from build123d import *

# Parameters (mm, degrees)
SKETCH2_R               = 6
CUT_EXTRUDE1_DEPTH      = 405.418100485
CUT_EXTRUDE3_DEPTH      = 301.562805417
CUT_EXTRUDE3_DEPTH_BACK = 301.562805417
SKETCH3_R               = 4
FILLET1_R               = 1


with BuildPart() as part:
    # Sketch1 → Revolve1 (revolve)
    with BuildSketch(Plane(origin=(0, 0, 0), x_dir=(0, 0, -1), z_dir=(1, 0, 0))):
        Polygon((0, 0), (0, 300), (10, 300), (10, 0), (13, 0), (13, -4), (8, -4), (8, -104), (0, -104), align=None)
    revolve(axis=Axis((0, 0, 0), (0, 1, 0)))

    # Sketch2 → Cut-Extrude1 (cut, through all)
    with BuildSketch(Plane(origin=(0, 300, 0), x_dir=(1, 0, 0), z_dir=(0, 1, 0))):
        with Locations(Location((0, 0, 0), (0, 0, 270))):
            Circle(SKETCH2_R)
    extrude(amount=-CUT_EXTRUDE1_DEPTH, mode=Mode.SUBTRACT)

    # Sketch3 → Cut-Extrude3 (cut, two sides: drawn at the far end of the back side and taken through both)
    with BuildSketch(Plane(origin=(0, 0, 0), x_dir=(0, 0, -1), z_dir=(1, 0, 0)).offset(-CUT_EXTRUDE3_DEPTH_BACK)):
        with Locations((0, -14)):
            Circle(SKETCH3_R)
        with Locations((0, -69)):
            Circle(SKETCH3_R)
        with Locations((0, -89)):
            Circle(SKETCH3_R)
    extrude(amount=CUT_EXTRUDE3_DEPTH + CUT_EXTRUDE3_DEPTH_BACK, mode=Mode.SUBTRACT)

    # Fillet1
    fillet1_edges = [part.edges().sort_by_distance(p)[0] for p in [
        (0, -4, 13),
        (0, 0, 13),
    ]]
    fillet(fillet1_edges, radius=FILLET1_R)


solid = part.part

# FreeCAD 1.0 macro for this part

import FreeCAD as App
import Part
import Sketcher

V = App.Vector


def edges_at(feature, points):
    """Names of the edges that pass closest to the given points."""
    edges = feature.Shape.Edges
    near = lambda p: min(range(len(edges)), key=lambda i: edges[i].distToShape(Part.Vertex(*p))[0])
    return sorted({f"Edge{near(p) + 1}" for p in points})

doc = App.newDocument("Part")
body = doc.addObject("PartDesign::Body", "Body")

sketch1 = doc.addObject("Sketcher::SketchObject", "Sketch")
body.addObject(sketch1)
sketch1.AttachmentSupport = (doc.YZ_Plane, [""])
sketch1.MapMode = "FlatFace"
sketch1.addGeometry([
    Part.LineSegment(V(300, 0, 0), V(-104, 0, 0)),
    Part.LineSegment(V(-104, 0, 0), V(-104, -8, 0)),
    Part.LineSegment(V(-104, -8, 0), V(-4, -8, 0)),
    Part.LineSegment(V(-4, -8, 0), V(-4, -13, 0)),
    Part.LineSegment(V(-4, -13, 0), V(0, -13, 0)),
    Part.LineSegment(V(0, -13, 0), V(0, -10, 0)),
    Part.LineSegment(V(0, -10, 0), V(300, -10, 0)),
    Part.LineSegment(V(300, -10, 0), V(300, 0, 0)),
], False)
sketch1.addConstraint([
    Sketcher.Constraint("Coincident", 0, 2, 1, 1),
    Sketcher.Constraint("Coincident", 1, 2, 2, 1),
    Sketcher.Constraint("Coincident", 2, 2, 3, 1),
    Sketcher.Constraint("Coincident", 3, 2, 4, 1),
    Sketcher.Constraint("Coincident", 4, 2, 5, 1),
    Sketcher.Constraint("Coincident", 5, 2, 6, 1),
    Sketcher.Constraint("Coincident", 6, 2, 7, 1),
    Sketcher.Constraint("Coincident", 7, 2, 0, 1),
    Sketcher.Constraint("Horizontal", 0),
    Sketcher.Constraint("Vertical", 1),
    Sketcher.Constraint("Horizontal", 2),
    Sketcher.Constraint("Vertical", 3),
    Sketcher.Constraint("Horizontal", 4),
    Sketcher.Constraint("Vertical", 5),
    Sketcher.Constraint("Horizontal", 6),
    Sketcher.Constraint("Vertical", 7),
    Sketcher.Constraint("PointOnObject", 0, 2, -1),
    Sketcher.Constraint("PointOnObject", 4, 2, -2),
    Sketcher.Constraint("DistanceX", 0, 2, 0, 1, 404.0),
    Sketcher.Constraint("DistanceX", 2, 1, 2, 2, 100.0),
    Sketcher.Constraint("DistanceX", 4, 1, 4, 2, 4.0),
    Sketcher.Constraint("DistanceY", 1, 2, 1, 1, 8.0),
    Sketcher.Constraint("DistanceY", 3, 2, 3, 1, 5.0),
    Sketcher.Constraint("DistanceY", 5, 1, 5, 2, 3.0),
])
revolution = doc.addObject("PartDesign::Revolution", "Revolution")
body.addObject(revolution)
revolution.Profile = sketch1
revolution.ReferenceAxis = (sketch1, ["H_Axis"])
revolution.Angle = 360

sketch2 = doc.addObject("Sketcher::SketchObject", "Sketch001")
body.addObject(sketch2)
sketch2.AttachmentSupport = (doc.XZ_Plane, [""])
sketch2.MapMode = "FlatFace"
sketch2.AttachmentOffset = App.Placement(V(0, 0, -300), App.Rotation())
sketch2.addGeometry(Part.Circle(V(0, 0, 0), V(0, 0, 1), 6), False)
sketch2.addConstraint([
    Sketcher.Constraint("Coincident", 0, 3, -1, 1),
    Sketcher.Constraint("Diameter", 0, 12.0),
])
pocket1 = doc.addObject("PartDesign::Pocket", "Pocket")
body.addObject(pocket1)
pocket1.Profile = sketch2
pocket1.Type = "ThroughAll"
pocket1.Reversed = True

sketch3 = doc.addObject("Sketcher::SketchObject", "Sketch002")
body.addObject(sketch3)
sketch3.AttachmentSupport = (doc.YZ_Plane, [""])
sketch3.MapMode = "FlatFace"
sketch3.addGeometry([
    Part.Circle(V(-14, 0, 0), V(0, 0, 1), 4),
    Part.Circle(V(-69, 0, 0), V(0, 0, 1), 4),
    Part.Circle(V(-89, 0, 0), V(0, 0, 1), 4),
], False)
sketch3.addConstraint([
    Sketcher.Constraint("Equal", 0, 1),
    Sketcher.Constraint("Equal", 1, 2),
    Sketcher.Constraint("PointOnObject", 0, 3, -1),
    Sketcher.Constraint("PointOnObject", 1, 3, -1),
    Sketcher.Constraint("PointOnObject", 2, 3, -1),
    Sketcher.Constraint("Diameter", 0, 8.0),
    Sketcher.Constraint("DistanceX", 0, 3, -1, 1, 14.0),
    Sketcher.Constraint("DistanceX", 1, 3, -1, 1, 69.0),
    Sketcher.Constraint("DistanceX", 2, 3, -1, 1, 89.0),
])
pocket2 = doc.addObject("PartDesign::Pocket", "Pocket001")
body.addObject(pocket2)
pocket2.Profile = sketch3
pocket2.Type = "ThroughAll"
pocket2.Midplane = True
doc.recompute()

fillet = doc.addObject("PartDesign::Fillet", "Fillet")
body.addObject(fillet)
fillet.Base = (pocket2, edges_at(pocket2, [(0, -4, 13), (0, 0, 13)]))
fillet.Radius = 1

doc.recompute()
